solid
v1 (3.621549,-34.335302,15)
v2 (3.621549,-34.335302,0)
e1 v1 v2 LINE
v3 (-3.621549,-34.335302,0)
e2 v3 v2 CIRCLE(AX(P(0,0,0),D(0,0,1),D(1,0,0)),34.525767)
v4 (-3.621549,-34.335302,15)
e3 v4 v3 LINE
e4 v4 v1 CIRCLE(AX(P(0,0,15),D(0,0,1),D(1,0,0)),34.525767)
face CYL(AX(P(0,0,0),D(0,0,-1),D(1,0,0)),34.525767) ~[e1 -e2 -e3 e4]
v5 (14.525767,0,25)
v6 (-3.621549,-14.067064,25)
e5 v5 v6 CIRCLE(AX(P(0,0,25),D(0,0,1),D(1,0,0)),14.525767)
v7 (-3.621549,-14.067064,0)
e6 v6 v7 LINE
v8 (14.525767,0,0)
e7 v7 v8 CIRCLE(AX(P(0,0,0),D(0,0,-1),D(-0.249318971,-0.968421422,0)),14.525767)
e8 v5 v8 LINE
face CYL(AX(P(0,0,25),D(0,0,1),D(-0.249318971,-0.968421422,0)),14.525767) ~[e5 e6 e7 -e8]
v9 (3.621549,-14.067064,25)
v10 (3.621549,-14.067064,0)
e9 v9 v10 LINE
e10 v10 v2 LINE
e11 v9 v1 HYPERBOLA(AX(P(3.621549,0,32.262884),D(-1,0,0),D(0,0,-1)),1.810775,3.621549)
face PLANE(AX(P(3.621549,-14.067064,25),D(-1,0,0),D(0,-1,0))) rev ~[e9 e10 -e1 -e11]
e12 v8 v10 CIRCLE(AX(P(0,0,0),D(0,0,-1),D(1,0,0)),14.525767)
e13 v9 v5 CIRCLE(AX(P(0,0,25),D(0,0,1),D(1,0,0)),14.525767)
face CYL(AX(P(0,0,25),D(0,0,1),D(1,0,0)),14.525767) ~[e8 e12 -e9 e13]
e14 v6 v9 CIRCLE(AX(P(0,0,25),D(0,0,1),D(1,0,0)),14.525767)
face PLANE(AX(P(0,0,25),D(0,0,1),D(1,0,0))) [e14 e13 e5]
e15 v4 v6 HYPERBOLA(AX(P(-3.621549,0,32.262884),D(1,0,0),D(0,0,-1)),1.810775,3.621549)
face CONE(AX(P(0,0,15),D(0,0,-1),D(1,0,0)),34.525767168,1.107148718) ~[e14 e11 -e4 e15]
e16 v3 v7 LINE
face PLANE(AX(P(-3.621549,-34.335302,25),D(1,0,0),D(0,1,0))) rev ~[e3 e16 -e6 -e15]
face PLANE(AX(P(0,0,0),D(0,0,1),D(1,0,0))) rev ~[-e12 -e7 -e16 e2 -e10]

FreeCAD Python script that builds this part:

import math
import FreeCAD as App
import Part
import Sketcher

V = App.Vector
Q = App.Units.Quantity


def edges_at(feature, points):
    """Names of the edges that pass closest to the given points."""
    edges = feature.Shape.Edges
    near = lambda p: min(range(len(edges)), key=lambda i: edges[i].distToShape(Part.Vertex(*p))[0])
    return sorted({f"Edge{near(p) + 1}" for p in points})

doc = App.newDocument("Part")
body = doc.addObject("PartDesign::Body", "Body")

# Sketch on XY plane
sketch1 = doc.addObject("Sketcher::SketchObject", "Sketch")
body.addObject(sketch1)
sketch1.AttachmentSupport = (doc.XY_Plane, [""])
sketch1.MapMode = "FlatFace"
sketch1.addGeometry(Part.Circle(V(0, 0, 0), V(0, 0, 1), 35), False)
sketch1.addConstraint([
    Sketcher.Constraint("Coincident", 0, 3, -1, 1),
    Sketcher.Constraint("Diameter", 0, Q("69.051534 mm")),
])
pad1 = doc.addObject("PartDesign::Pad", "Pad")
body.addObject(pad1)
pad1.Profile = sketch1
pad1.Length = 25
doc.recompute()

chamfer = doc.addObject("PartDesign::Chamfer", "Chamfer")
body.addObject(chamfer)
chamfer.Base = (pad1, edges_at(pad1, [(-34.526, 0, 25)]))
chamfer.ChamferType = "Two distances"
chamfer.Size = 20
chamfer.Size2 = 10
chamfer.FlipDirection = True

# Sketch on XY plane
sketch2 = doc.addObject("Sketcher::SketchObject", "Sketch001")
body.addObject(sketch2)
sketch2.AttachmentSupport = (doc.XY_Plane, [""])
sketch2.MapMode = "FlatFace"
sketch2.AttachmentOffset = App.Placement(V(0, 0, 25), App.Rotation())
sketch2.addGeometry([
    Part.LineSegment(V(-4, -34, 0), V(-4, -14, 0)),  # 0
    Part.ArcOfCircle(Part.Circle(V(0, 0, 0), V(0, 0, 1), 15), math.radians(0), math.radians(256)),  # 1
    Part.ArcOfCircle(Part.Circle(V(0, 0, 0), V(0, 0, 1), 15), math.radians(-76), math.radians(0)),  # 2
    Part.LineSegment(V(4, -14, 0), V(4, -34, 0)),  # 3
    Part.ArcOfCircle(Part.Circle(V(0, 0, 0), V(0, 0, 1), 35), math.radians(-84), math.radians(264)),  # 4
], False)
sketch2.addConstraint([
    Sketcher.Constraint("Coincident", 0, 2, 1, 2),
    Sketcher.Constraint("Tangent", 1, 1, 2, 2),
    Sketcher.Constraint("Coincident", 2, 1, 3, 1),
    Sketcher.Constraint("Coincident", 3, 2, 4, 1),
    Sketcher.Constraint("Coincident", 4, 2, 0, 1),
    Sketcher.Constraint("Vertical", 0),
    Sketcher.Constraint("Vertical", 3),
    Sketcher.Constraint("Coincident", 1, 3, -1, 1),
    Sketcher.Constraint("Coincident", 4, 3, -1, 1),
    Sketcher.Constraint("Equal", 1, 2),
    Sketcher.Constraint("PointOnObject", 1, 1, -1),
    Sketcher.Constraint("Horizontal", 0, 2, 2, 1),
    Sketcher.Constraint("Radius", 1, Q("14.525767 mm")),
    Sketcher.Constraint("Radius", 4, Q("34.525767 mm")),
    Sketcher.Constraint("DistanceY", 0, 1, 0, 2, Q("20.268238 mm")),
])
pocket1 = doc.addObject("PartDesign::Pocket", "Pocket")
body.addObject(pocket1)
pocket1.Profile = sketch2
pocket1.Length = 25

doc.recompute()
